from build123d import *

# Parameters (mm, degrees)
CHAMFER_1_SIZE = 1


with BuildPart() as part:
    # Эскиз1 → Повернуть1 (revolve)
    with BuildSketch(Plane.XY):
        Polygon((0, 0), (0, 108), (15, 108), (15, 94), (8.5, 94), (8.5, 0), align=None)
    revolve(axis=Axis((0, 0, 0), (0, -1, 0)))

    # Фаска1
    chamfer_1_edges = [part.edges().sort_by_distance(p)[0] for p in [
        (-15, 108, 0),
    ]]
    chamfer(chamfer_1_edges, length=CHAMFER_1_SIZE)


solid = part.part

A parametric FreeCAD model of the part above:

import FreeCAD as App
import Part
import Sketcher
from FreeCAD import Vector
Q = App.Units.Quantity


def edges_at(feature, points):
    """Names of the edges that pass closest to the given points."""
    edges = feature.Shape.Edges
    near = lambda p: min(range(len(edges)), key=lambda i: edges[i].distToShape(Part.Vertex(*p))[0])
    return sorted({f"Edge{near(p) + 1}" for p in points})


def add_polygon(sketch, points):
    """Adds a closed chain of lines whose ends are joined by coincident constraints."""
    first, n = sketch.GeometryCount, len(points)
    for a, b in zip(points, points[1:] + points[:1]):
        sketch.addGeometry(Part.LineSegment(App.Vector(*a, 0), App.Vector(*b, 0)), False)
    for i in range(n):
        sketch.addConstraint(Sketcher.Constraint("Coincident", first + i, 2, first + (i + 1) % n, 1))

doc = App.newDocument("Part")
body = doc.addObject("PartDesign::Body", "Body")

# Sketch on XY plane
sketch1 = body.newObject("Sketcher::SketchObject", "Sketch")
sketch1.AttachmentSupport = (doc.getObject("XY_Plane"), [""])
sketch1.MapMode = "FlatFace"
add_polygon(sketch1, [(0, 108), (0, 0), (8, 0), (8, 94), (15, 94), (15, 108)])  # lines 0-5
sketch1.addConstraint(Sketcher.Constraint("Vertical", 0))
sketch1.addConstraint(Sketcher.Constraint("Horizontal", 1))
sketch1.addConstraint(Sketcher.Constraint("Vertical", 2))
sketch1.addConstraint(Sketcher.Constraint("Horizontal", 3))
sketch1.addConstraint(Sketcher.Constraint("Vertical", 4))
sketch1.addConstraint(Sketcher.Constraint("Horizontal", 5))
sketch1.addConstraint(Sketcher.Constraint("Coincident", 0, 2, -1, 1))
sketch1.addConstraint(Sketcher.Constraint("DistanceX", 5, 2, 5, 1, Q("15 mm")))
sketch1.addConstraint(Sketcher.Constraint("DistanceY", 0, 2, 0, 1, Q("108 mm")))
sketch1.addConstraint(Sketcher.Constraint("DistanceY", 2, 1, 2, 2, Q("94 mm")))
sketch1.addConstraint(Sketcher.Constraint("DistanceX", 1, 1, 1, 2, Q("8.5 mm")))
revolution = body.newObject("PartDesign::Revolution", "Revolution")
revolution.Profile = sketch1
revolution.ReferenceAxis = (sketch1, ["V_Axis"])
revolution.Angle = 360
doc.recompute()

chamfer = body.newObject("PartDesign::Chamfer", "Chamfer")
chamfer.Base = (revolution, edges_at(revolution, [(-15, 108, 0)]))
chamfer.Size = 1

doc.recompute()
